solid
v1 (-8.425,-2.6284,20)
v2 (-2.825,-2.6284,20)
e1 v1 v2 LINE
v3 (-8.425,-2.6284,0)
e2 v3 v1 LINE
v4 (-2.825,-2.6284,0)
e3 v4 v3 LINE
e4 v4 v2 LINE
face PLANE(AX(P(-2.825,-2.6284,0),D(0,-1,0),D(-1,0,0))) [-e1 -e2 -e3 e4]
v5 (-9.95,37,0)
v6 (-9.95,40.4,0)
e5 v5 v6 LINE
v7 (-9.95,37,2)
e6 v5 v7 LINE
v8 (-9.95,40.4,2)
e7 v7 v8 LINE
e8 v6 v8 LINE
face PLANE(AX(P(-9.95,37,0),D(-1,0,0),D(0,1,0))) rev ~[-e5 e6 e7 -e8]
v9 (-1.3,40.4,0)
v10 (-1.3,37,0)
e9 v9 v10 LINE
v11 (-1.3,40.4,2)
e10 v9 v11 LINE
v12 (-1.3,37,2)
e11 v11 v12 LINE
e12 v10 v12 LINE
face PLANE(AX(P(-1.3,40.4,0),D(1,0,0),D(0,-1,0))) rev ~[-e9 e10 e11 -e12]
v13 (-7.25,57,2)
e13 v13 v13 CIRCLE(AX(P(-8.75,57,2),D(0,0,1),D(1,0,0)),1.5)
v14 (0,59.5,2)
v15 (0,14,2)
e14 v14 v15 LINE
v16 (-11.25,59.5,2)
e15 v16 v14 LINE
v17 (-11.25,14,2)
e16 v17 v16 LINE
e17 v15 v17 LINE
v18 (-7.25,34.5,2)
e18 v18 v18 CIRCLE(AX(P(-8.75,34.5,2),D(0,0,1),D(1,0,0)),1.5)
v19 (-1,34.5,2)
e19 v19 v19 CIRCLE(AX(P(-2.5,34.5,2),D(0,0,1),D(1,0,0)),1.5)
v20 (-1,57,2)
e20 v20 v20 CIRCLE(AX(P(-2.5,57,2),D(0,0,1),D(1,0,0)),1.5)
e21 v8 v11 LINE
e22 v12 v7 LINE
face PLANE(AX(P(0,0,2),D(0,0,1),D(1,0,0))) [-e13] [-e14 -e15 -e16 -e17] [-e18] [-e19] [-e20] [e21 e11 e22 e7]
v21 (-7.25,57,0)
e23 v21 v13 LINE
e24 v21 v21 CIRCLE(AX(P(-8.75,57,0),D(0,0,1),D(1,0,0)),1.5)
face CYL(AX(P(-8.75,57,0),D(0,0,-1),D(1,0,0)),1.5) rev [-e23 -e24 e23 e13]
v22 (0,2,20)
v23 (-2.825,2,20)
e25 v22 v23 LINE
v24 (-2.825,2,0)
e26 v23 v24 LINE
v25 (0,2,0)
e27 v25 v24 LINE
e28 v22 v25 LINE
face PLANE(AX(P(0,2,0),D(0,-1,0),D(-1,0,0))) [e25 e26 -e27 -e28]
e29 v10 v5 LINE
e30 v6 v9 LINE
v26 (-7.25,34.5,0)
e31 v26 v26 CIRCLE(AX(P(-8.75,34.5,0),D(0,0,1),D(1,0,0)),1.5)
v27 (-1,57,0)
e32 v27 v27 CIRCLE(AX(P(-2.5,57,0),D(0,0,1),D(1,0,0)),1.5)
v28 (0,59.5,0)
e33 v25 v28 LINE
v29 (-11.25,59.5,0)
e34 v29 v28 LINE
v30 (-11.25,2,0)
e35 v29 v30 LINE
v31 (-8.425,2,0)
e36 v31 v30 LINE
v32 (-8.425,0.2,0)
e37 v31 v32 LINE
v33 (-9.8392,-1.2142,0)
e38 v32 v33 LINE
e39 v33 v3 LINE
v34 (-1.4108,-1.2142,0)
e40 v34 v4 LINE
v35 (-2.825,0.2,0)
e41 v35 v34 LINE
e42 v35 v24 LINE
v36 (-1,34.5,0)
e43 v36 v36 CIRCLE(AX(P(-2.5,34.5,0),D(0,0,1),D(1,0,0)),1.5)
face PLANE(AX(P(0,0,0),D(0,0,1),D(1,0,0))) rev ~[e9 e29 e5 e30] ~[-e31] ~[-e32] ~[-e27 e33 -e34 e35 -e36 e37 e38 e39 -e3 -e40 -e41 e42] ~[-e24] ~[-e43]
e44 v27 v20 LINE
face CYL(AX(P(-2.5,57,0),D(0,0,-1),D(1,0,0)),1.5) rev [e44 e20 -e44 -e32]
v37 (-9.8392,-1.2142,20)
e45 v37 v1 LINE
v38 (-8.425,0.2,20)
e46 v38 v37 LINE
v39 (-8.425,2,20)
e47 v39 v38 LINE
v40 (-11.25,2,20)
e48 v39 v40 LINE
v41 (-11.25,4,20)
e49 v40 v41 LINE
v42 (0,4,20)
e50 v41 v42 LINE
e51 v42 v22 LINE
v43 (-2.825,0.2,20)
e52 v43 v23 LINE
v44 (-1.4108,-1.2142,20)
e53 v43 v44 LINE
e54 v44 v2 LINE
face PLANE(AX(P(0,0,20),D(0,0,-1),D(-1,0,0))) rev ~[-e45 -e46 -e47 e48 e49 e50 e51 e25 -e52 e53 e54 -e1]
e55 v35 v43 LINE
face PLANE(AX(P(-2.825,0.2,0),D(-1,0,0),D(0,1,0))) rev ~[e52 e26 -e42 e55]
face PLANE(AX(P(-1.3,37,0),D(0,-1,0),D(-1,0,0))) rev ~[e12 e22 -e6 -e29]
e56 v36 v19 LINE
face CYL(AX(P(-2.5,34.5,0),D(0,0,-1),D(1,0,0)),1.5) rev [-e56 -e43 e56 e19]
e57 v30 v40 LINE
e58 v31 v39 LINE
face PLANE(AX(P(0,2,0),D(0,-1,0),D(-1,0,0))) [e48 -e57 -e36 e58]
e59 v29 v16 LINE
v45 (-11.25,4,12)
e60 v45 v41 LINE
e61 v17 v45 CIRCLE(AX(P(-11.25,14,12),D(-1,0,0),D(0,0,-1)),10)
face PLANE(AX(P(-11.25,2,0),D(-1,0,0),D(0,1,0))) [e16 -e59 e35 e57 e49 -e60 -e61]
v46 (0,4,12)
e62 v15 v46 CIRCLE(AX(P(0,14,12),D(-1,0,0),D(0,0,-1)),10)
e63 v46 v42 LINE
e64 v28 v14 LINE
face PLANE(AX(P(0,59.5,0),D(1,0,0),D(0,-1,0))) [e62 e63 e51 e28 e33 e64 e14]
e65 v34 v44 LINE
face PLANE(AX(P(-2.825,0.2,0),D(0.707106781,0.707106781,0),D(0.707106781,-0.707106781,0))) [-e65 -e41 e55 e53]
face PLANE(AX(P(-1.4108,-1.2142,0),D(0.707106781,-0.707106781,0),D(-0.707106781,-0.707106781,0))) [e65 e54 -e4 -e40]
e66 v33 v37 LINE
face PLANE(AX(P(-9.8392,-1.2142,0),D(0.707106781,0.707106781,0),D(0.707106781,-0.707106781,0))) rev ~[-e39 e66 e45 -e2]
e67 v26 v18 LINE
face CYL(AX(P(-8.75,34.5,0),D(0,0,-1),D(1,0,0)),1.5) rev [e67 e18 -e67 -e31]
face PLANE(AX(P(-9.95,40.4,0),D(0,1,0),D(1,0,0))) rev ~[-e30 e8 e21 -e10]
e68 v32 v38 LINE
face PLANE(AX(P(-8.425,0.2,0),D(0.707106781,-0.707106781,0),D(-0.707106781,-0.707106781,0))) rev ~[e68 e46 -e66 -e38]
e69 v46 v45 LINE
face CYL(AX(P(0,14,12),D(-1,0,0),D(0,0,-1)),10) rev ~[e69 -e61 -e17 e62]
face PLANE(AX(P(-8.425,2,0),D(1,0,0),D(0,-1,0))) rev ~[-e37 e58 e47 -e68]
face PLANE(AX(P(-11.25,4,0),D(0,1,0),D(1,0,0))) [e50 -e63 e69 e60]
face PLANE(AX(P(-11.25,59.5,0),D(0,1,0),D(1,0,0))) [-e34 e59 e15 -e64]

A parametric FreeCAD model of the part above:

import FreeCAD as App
import Part
import Sketcher
from FreeCAD import Vector


def edges_at(feature, points):
    """Names of the edges that pass closest to the given points."""
    edges = feature.Shape.Edges
    near = lambda p: min(range(len(edges)), key=lambda i: edges[i].distToShape(Part.Vertex(*p))[0])
    return sorted({f"Edge{near(p) + 1}" for p in points})

doc = App.newDocument("Part")
params = doc.addObject("Spreadsheet::Sheet", "Params")
for row, (alias, value) in enumerate([
    ("sketch1_diameter", "3 mm"),
    ("sketch1_height", "57.5 mm"),
    ("sketch1_width", "11.25 mm"),
    ("sketch1_height2", "3.4 mm"),
    ("pad1_length", "2 mm"),
    ("sketch2_height", "2 mm"),
    ("sketch2_length", "2 mm"),
    ("sketch2_height2", "1.8 mm"),
    ("sketch2_width", "5.6 mm"),
    ("sketch2_width2", "11.25 mm"),
    ("pad2_length", "20 mm"),
    ("fillet_radius", "10 mm"),
], start=1):
    params.set(f"A{row}", alias)
    params.set(f"B{row}", "=" + value)
    params.setAlias(f"B{row}", alias)

body = doc.addObject("PartDesign::Body", "Body")

sketch1 = body.newObject("Sketcher::SketchObject", "Sketch")
sketch1.AttachmentSupport = (doc.getObject("XY_Plane"), [""])
sketch1.MapMode = "FlatFace"
sketch1.addGeometry(Part.LineSegment(Vector(0, 59.5, 0), Vector(-11.2, 59.5, 0)), False)
sketch1.addGeometry(Part.LineSegment(Vector(-11.2, 59.5, 0), Vector(-11.2, 2, 0)), False)
sketch1.addGeometry(Part.LineSegment(Vector(-11.2, 2, 0), Vector(0, 2, 0)), False)
sketch1.addGeometry(Part.LineSegment(Vector(0, 2, 0), Vector(0, 59.5, 0)), False)
sketch1.addGeometry(Part.Circle(Vector(-8.8, 34.5, 0), Vector(0, 0, 1), 1.5), False)
sketch1.addGeometry(Part.Circle(Vector(-8.8, 57, 0), Vector(0, 0, 1), 1.5), False)
sketch1.addGeometry(Part.LineSegment(Vector(-9.9, 37, 0), Vector(-9.9, 40.4, 0)), False)
sketch1.addGeometry(Part.LineSegment(Vector(-9.9, 40.4, 0), Vector(-1.3, 40.4, 0)), False)
sketch1.addGeometry(Part.LineSegment(Vector(-1.3, 40.4, 0), Vector(-1.3, 37, 0)), False)
sketch1.addGeometry(Part.LineSegment(Vector(-1.3, 37, 0), Vector(-9.9, 37, 0)), False)
sketch1.addGeometry(Part.Circle(Vector(-2.5, 34.5, 0), Vector(0, 0, 1), 1.5), False)
sketch1.addGeometry(Part.Circle(Vector(-2.5, 57, 0), Vector(0, 0, 1), 1.5), False)
sketch1.addConstraint(Sketcher.Constraint("Coincident", 0, 2, 1, 1))
sketch1.addConstraint(Sketcher.Constraint("Coincident", 1, 2, 2, 1))
sketch1.addConstraint(Sketcher.Constraint("Coincident", 2, 2, 3, 1))
sketch1.addConstraint(Sketcher.Constraint("Coincident", 3, 2, 0, 1))
sketch1.addConstraint(Sketcher.Constraint("Coincident", 6, 2, 7, 1))
sketch1.addConstraint(Sketcher.Constraint("Coincident", 7, 2, 8, 1))
sketch1.addConstraint(Sketcher.Constraint("Coincident", 8, 2, 9, 1))
sketch1.addConstraint(Sketcher.Constraint("Coincident", 9, 2, 6, 1))
sketch1.addConstraint(Sketcher.Constraint("Horizontal", 0))
sketch1.addConstraint(Sketcher.Constraint("Vertical", 1))
sketch1.addConstraint(Sketcher.Constraint("Horizontal", 2))
sketch1.addConstraint(Sketcher.Constraint("Vertical", 3))
sketch1.addConstraint(Sketcher.Constraint("Vertical", 6))
sketch1.addConstraint(Sketcher.Constraint("Horizontal", 7))
sketch1.addConstraint(Sketcher.Constraint("Vertical", 8))
sketch1.addConstraint(Sketcher.Constraint("Horizontal", 9))
sketch1.addConstraint(Sketcher.Constraint("Equal", 4, 5))
sketch1.addConstraint(Sketcher.Constraint("Equal", 5, 10))
sketch1.addConstraint(Sketcher.Constraint("Equal", 10, 11))
sketch1.addConstraint(Sketcher.Constraint("PointOnObject", 2, 2, -2))
sketch1.addConstraint(Sketcher.Constraint("Horizontal", 4, 3, 10, 3))
sketch1.addConstraint(Sketcher.Constraint("Horizontal", 5, 3, 11, 3))
sketch1.addConstraint(Sketcher.Constraint("Vertical", 4, 3, 5, 3))
sketch1.addConstraint(Sketcher.Constraint("Vertical", 10, 3, 11, 3))
sketch1.addConstraint(Sketcher.Constraint("Diameter", 4, 3.0))
sketch1.addConstraint(Sketcher.Constraint("DistanceY", 1, 2, 1, 1, 57.5))
sketch1.addConstraint(Sketcher.Constraint("DistanceX", 0, 2, 0, 1, 11.25))
sketch1.addConstraint(Sketcher.Constraint("DistanceX", 10, 3, -1, 1, 2.5))
sketch1.addConstraint(Sketcher.Constraint("DistanceX", 7, 2, -1, 1, 1.3))
sketch1.addConstraint(Sketcher.Constraint("DistanceY", 4, 3, 5, 3, 22.5))
sketch1.addConstraint(Sketcher.Constraint("DistanceX", 0, 2, 5, 3, 2.5))
sketch1.addConstraint(Sketcher.Constraint("DistanceY", 5, 3, 0, 2, 2.5))
sketch1.addConstraint(Sketcher.Constraint("DistanceX", 0, 2, 6, 2, 1.3))
sketch1.addConstraint(Sketcher.Constraint("DistanceY", 10, 3, 8, 2, 2.5))
sketch1.addConstraint(Sketcher.Constraint("DistanceY", 6, 1, 6, 2, 3.4))
sketch1.addConstraint(Sketcher.Constraint("DistanceY", -1, 1, 5, 3, 57.0))
sketch1.setExpression("Constraints[24]", "Params.sketch1_diameter")
sketch1.setExpression("Constraints[25]", "Params.sketch1_height")
sketch1.setExpression("Constraints[26]", "Params.sketch1_width")
sketch1.setExpression("Constraints[34]", "Params.sketch1_height2")
pad1 = body.newObject("PartDesign::Pad", "Pad")
pad1.Profile = sketch1
pad1.setExpression("Length", "Params.pad1_length")

sketch2 = body.newObject("Sketcher::SketchObject", "Sketch001")
sketch2.AttachmentSupport = (doc.getObject("XY_Plane"), [""])
sketch2.MapMode = "FlatFace"
sketch2.addGeometry(Part.LineSegment(Vector(-2.8, 0.2, 0), Vector(-1.4, -1.2, 0)), False)
sketch2.addGeometry(Part.LineSegment(Vector(-1.4, -1.2, 0), Vector(-2.8, -2.6, 0)), False)
sketch2.addGeometry(Part.LineSegment(Vector(-2.8, -2.6, 0), Vector(-8.4, -2.6, 0)), False)
sketch2.addGeometry(Part.LineSegment(Vector(-8.4, -2.6, 0), Vector(-9.8, -1.2, 0)), False)
sketch2.addGeometry(Part.LineSegment(Vector(-9.8, -1.2, 0), Vector(-8.4, 0.2, 0)), False)
sketch2.addGeometry(Part.LineSegment(Vector(-8.4, 0.2, 0), Vector(-8.4, 2, 0)), False)
sketch2.addGeometry(Part.LineSegment(Vector(-8.4, 2, 0), Vector(-11.2, 2, 0)), False)
sketch2.addGeometry(Part.LineSegment(Vector(-11.2, 2, 0), Vector(-11.2, 4, 0)), False)
sketch2.addGeometry(Part.LineSegment(Vector(-11.2, 4, 0), Vector(0, 4, 0)), False)
sketch2.addGeometry(Part.LineSegment(Vector(0, 4, 0), Vector(0, 2, 0)), False)
sketch2.addGeometry(Part.LineSegment(Vector(0, 2, 0), Vector(-2.8, 2, 0)), False)
sketch2.addGeometry(Part.LineSegment(Vector(-2.8, 2, 0), Vector(-2.8, 0.2, 0)), False)
sketch2.addConstraint(Sketcher.Constraint("Coincident", 0, 2, 1, 1))
sketch2.addConstraint(Sketcher.Constraint("Coincident", 1, 2, 2, 1))
sketch2.addConstraint(Sketcher.Constraint("Coincident", 2, 2, 3, 1))
sketch2.addConstraint(Sketcher.Constraint("Coincident", 3, 2, 4, 1))
sketch2.addConstraint(Sketcher.Constraint("Coincident", 4, 2, 5, 1))
sketch2.addConstraint(Sketcher.Constraint("Coincident", 5, 2, 6, 1))
sketch2.addConstraint(Sketcher.Constraint("Coincident", 6, 2, 7, 1))
sketch2.addConstraint(Sketcher.Constraint("Coincident", 7, 2, 8, 1))
sketch2.addConstraint(Sketcher.Constraint("Coincident", 8, 2, 9, 1))
sketch2.addConstraint(Sketcher.Constraint("Coincident", 9, 2, 10, 1))
sketch2.addConstraint(Sketcher.Constraint("Coincident", 10, 2, 11, 1))
sketch2.addConstraint(Sketcher.Constraint("Coincident", 11, 2, 0, 1))
sketch2.addConstraint(Sketcher.Constraint("Horizontal", 2))
sketch2.addConstraint(Sketcher.Constraint("Vertical", 5))
sketch2.addConstraint(Sketcher.Constraint("Horizontal", 6))
sketch2.addConstraint(Sketcher.Constraint("Vertical", 7))
sketch2.addConstraint(Sketcher.Constraint("Horizontal", 8))
sketch2.addConstraint(Sketcher.Constraint("Vertical", 9))
sketch2.addConstraint(Sketcher.Constraint("Horizontal", 10))
sketch2.addConstraint(Sketcher.Constraint("Vertical", 11))
sketch2.addConstraint(Sketcher.Constraint("PointOnObject", 8, 2, -2))
sketch2.addConstraint(Sketcher.Constraint("Perpendicular", 0, 1))
sketch2.addConstraint(Sketcher.Constraint("Perpendicular", 1, 3))
sketch2.addConstraint(Sketcher.Constraint("Perpendicular", 3, 4))
sketch2.addConstraint(Sketcher.Constraint("Horizontal", 0, 2, 3, 2))
sketch2.addConstraint(Sketcher.Constraint("Horizontal", 6, 2, 9, 2))
sketch2.addConstraint(Sketcher.Constraint("Horizontal", 4, 2, 11, 2))
sketch2.addConstraint(Sketcher.Constraint("Vertical", 2, 2, 4, 2))
sketch2.addConstraint(Sketcher.Constraint("Vertical", 1, 2, 10, 2))
sketch2.addConstraint(Sketcher.Constraint("Equal", 6, 10))
sketch2.addConstraint(Sketcher.Constraint("DistanceY", 7, 1, 7, 2, 2.0))
sketch2.addConstraint(Sketcher.Constraint("Distance", 0, 2.0))
sketch2.addConstraint(Sketcher.Constraint("DistanceY", 5, 1, 5, 2, 1.8))
sketch2.addConstraint(Sketcher.Constraint("DistanceY", -1, 1, 5, 2, 2.0))
sketch2.addConstraint(Sketcher.Constraint("DistanceX", 2, 2, 2, 1, 5.6))
sketch2.addConstraint(Sketcher.Constraint("DistanceX", 8, 1, 8, 2, 11.25))
sketch2.setExpression("Constraints[30]", "Params.sketch2_height")
sketch2.setExpression("Constraints[31]", "Params.sketch2_length")
sketch2.setExpression("Constraints[32]", "Params.sketch2_height2")
sketch2.setExpression("Constraints[34]", "Params.sketch2_width")
sketch2.setExpression("Constraints[35]", "Params.sketch2_width2")
pad2 = body.newObject("PartDesign::Pad", "Pad001")
pad2.Profile = sketch2
pad2.setExpression("Length", "Params.pad2_length")
doc.recompute()

fillet = body.newObject("PartDesign::Fillet", "Fillet")
fillet.Base = (pad2, edges_at(pad2, [(-5.625, 4, 2)]))
fillet.setExpression("Radius", "Params.fillet_radius")

doc.recompute()
